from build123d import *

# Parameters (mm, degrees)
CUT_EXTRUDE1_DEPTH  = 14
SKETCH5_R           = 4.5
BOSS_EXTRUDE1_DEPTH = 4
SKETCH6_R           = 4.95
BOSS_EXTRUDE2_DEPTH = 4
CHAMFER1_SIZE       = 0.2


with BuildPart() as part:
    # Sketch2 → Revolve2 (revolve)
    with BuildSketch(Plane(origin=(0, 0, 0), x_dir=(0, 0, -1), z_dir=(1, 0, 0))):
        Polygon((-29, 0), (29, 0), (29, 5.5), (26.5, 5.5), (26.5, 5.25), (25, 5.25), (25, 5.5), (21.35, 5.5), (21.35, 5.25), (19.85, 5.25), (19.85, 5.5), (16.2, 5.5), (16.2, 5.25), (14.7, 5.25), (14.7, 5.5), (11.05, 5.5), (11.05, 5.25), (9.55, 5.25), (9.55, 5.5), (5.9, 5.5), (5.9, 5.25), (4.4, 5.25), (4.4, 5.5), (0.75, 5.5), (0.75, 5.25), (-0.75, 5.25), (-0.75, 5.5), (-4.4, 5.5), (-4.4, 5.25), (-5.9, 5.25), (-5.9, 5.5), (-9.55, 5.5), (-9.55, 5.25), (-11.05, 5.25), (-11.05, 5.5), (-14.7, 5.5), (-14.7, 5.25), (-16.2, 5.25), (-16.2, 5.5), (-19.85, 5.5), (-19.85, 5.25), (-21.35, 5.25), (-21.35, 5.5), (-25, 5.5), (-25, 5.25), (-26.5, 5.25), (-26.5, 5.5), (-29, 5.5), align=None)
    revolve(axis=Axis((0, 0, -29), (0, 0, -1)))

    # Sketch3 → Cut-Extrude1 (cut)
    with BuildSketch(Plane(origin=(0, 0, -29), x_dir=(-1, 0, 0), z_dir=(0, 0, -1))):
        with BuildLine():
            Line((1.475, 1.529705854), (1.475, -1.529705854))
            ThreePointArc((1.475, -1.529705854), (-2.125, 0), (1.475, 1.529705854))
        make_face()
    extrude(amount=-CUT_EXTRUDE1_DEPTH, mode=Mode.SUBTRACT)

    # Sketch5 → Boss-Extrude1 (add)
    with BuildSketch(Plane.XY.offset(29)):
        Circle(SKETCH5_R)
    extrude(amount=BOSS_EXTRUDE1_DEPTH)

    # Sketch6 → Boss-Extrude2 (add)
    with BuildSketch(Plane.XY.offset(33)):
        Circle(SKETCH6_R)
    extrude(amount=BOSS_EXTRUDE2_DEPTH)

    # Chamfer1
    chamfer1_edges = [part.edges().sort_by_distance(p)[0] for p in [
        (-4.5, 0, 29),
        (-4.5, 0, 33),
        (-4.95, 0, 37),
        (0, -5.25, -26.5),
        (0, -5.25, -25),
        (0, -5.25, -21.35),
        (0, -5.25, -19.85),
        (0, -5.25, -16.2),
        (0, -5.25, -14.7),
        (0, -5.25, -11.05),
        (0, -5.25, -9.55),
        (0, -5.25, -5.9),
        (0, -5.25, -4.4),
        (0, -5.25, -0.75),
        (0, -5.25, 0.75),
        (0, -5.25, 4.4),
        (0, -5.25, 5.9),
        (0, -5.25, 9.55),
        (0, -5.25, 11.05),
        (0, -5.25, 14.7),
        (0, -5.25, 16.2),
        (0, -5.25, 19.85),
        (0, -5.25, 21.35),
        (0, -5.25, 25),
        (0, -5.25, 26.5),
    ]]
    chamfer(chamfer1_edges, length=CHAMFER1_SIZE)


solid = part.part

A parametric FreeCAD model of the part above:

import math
import FreeCAD as App
import Part
import Sketcher

V = App.Vector


def edges_at(feature, points):
    """Names of the edges that pass closest to the given points."""
    edges = feature.Shape.Edges
    near = lambda p: min(range(len(edges)), key=lambda i: edges[i].distToShape(Part.Vertex(*p))[0])
    return sorted({f"Edge{near(p) + 1}" for p in points})


def add_polygon(sketch, points):
    """Adds a closed chain of lines whose ends are joined by coincident constraints."""
    first, n = sketch.GeometryCount, len(points)
    for a, b in zip(points, points[1:] + points[:1]):
        sketch.addGeometry(Part.LineSegment(App.Vector(*a, 0), App.Vector(*b, 0)), False)
    for i in range(n):
        sketch.addConstraint(Sketcher.Constraint("Coincident", first + i, 2, first + (i + 1) % n, 1))

doc = App.newDocument("Part")
body = doc.addObject("PartDesign::Body", "Body")

# Sketch on YZ plane
sketch1 = doc.addObject("Sketcher::SketchObject", "Sketch")
body.addObject(sketch1)
sketch1.AttachmentSupport = (doc.YZ_Plane, [""])
sketch1.MapMode = "FlatFace"
add_polygon(sketch1, [(0, 29), (0, -29), (5.5, -29), (5.5, -26.5), (5.25, -26.5), (5.25, -25), (5.5, -25), (5.5, -21.35), (5.25, -21.35), (5.25, -19.85), (5.5, -19.85), (5.5, -16.2), (5.25, -16.2), (5.25, -14.7), (5.5, -14.7), (5.5, -11.05), (5.25, -11.05), (5.25, -9.55), (5.5, -9.55), (5.5, -5.9), (5.25, -5.9), (5.25, -4.4), (5.5, -4.4), (5.5, -0.75), (5.25, -0.75), (5.25, 0.75), (5.5, 0.75), (5.5, 4.4), (5.25, 4.4), (5.25, 5.9), (5.5, 5.9), (5.5, 9.55), (5.25, 9.55), (5.25, 11.05), (5.5, 11.05), (5.5, 14.7), (5.25, 14.7), (5.25, 16.2), (5.5, 16.2), (5.5, 19.85), (5.25, 19.85), (5.25, 21.35), (5.5, 21.35), (5.5, 25), (5.25, 25), (5.25, 26.5), (5.5, 26.5), (5.5, 29)])  # lines 0-47
sketch1.addConstraint(Sketcher.Constraint("Vertical", 0))
sketch1.addConstraint(Sketcher.Constraint("Horizontal", 1))
sketch1.addConstraint(Sketcher.Constraint("Vertical", 2))
sketch1.addConstraint(Sketcher.Constraint("Horizontal", 3))
sketch1.addConstraint(Sketcher.Constraint("Vertical", 4))
sketch1.addConstraint(Sketcher.Constraint("Horizontal", 5))
sketch1.addConstraint(Sketcher.Constraint("Vertical", 6))
sketch1.addConstraint(Sketcher.Constraint("Horizontal", 7))
sketch1.addConstraint(Sketcher.Constraint("Vertical", 8))
sketch1.addConstraint(Sketcher.Constraint("Horizontal", 9))
sketch1.addConstraint(Sketcher.Constraint("Vertical", 10))
sketch1.addConstraint(Sketcher.Constraint("Horizontal", 11))
sketch1.addConstraint(Sketcher.Constraint("Vertical", 12))
sketch1.addConstraint(Sketcher.Constraint("Horizontal", 13))
sketch1.addConstraint(Sketcher.Constraint("Vertical", 14))
sketch1.addConstraint(Sketcher.Constraint("Horizontal", 15))
sketch1.addConstraint(Sketcher.Constraint("Vertical", 16))
sketch1.addConstraint(Sketcher.Constraint("Horizontal", 17))
sketch1.addConstraint(Sketcher.Constraint("Vertical", 18))
sketch1.addConstraint(Sketcher.Constraint("Horizontal", 19))
sketch1.addConstraint(Sketcher.Constraint("Vertical", 20))
sketch1.addConstraint(Sketcher.Constraint("Horizontal", 21))
sketch1.addConstraint(Sketcher.Constraint("Vertical", 22))
sketch1.addConstraint(Sketcher.Constraint("Horizontal", 23))
sketch1.addConstraint(Sketcher.Constraint("Vertical", 24))
sketch1.addConstraint(Sketcher.Constraint("Horizontal", 25))
sketch1.addConstraint(Sketcher.Constraint("Vertical", 26))
sketch1.addConstraint(Sketcher.Constraint("Horizontal", 27))
sketch1.addConstraint(Sketcher.Constraint("Vertical", 28))
sketch1.addConstraint(Sketcher.Constraint("Horizontal", 29))
sketch1.addConstraint(Sketcher.Constraint("Vertical", 30))
sketch1.addConstraint(Sketcher.Constraint("Horizontal", 31))
sketch1.addConstraint(Sketcher.Constraint("Vertical", 32))
sketch1.addConstraint(Sketcher.Constraint("Horizontal", 33))
sketch1.addConstraint(Sketcher.Constraint("Vertical", 34))
sketch1.addConstraint(Sketcher.Constraint("Horizontal", 35))
sketch1.addConstraint(Sketcher.Constraint("Vertical", 36))
sketch1.addConstraint(Sketcher.Constraint("Horizontal", 37))
sketch1.addConstraint(Sketcher.Constraint("Vertical", 38))
sketch1.addConstraint(Sketcher.Constraint("Horizontal", 39))
sketch1.addConstraint(Sketcher.Constraint("Vertical", 40))
sketch1.addConstraint(Sketcher.Constraint("Horizontal", 41))
sketch1.addConstraint(Sketcher.Constraint("Vertical", 42))
sketch1.addConstraint(Sketcher.Constraint("Horizontal", 43))
sketch1.addConstraint(Sketcher.Constraint("Vertical", 44))
sketch1.addConstraint(Sketcher.Constraint("Horizontal", 45))
sketch1.addConstraint(Sketcher.Constraint("Vertical", 46))
sketch1.addConstraint(Sketcher.Constraint("Horizontal", 47))
sketch1.addConstraint(Sketcher.Constraint("Symmetric", 0, 2, 47, 2, -1, 1))
sketch1.addConstraint(Sketcher.Constraint("Symmetric", 22, 2, 25, 2, -1))
sketch1.addConstraint(Sketcher.Constraint("Symmetric", 20, 2, 27, 2, -1))
sketch1.addConstraint(Sketcher.Constraint("Symmetric", 18, 2, 29, 2, -1))
sketch1.addConstraint(Sketcher.Constraint("Symmetric", 16, 2, 31, 2, -1))
sketch1.addConstraint(Sketcher.Constraint("Symmetric", 14, 2, 33, 2, -1))
sketch1.addConstraint(Sketcher.Constraint("Symmetric", 12, 2, 35, 2, -1))
sketch1.addConstraint(Sketcher.Constraint("Symmetric", 10, 2, 37, 2, -1))
sketch1.addConstraint(Sketcher.Constraint("Symmetric", 8, 2, 39, 2, -1))
sketch1.addConstraint(Sketcher.Constraint("Symmetric", 6, 2, 41, 2, -1))
sketch1.addConstraint(Sketcher.Constraint("Symmetric", 4, 2, 43, 2, -1))
sketch1.addConstraint(Sketcher.Constraint("Symmetric", 2, 2, 45, 2, -1))
sketch1.addConstraint(Sketcher.Constraint("Vertical", 2, 2, 5, 2))
sketch1.addConstraint(Sketcher.Constraint("Vertical", 4, 2, 7, 2))
sketch1.addConstraint(Sketcher.Constraint("Vertical", 6, 2, 9, 2))
sketch1.addConstraint(Sketcher.Constraint("Vertical", 8, 2, 11, 2))
sketch1.addConstraint(Sketcher.Constraint("Vertical", 10, 2, 13, 2))
sketch1.addConstraint(Sketcher.Constraint("Vertical", 12, 2, 15, 2))
sketch1.addConstraint(Sketcher.Constraint("Vertical", 14, 2, 17, 2))
sketch1.addConstraint(Sketcher.Constraint("Vertical", 16, 2, 19, 2))
sketch1.addConstraint(Sketcher.Constraint("Vertical", 18, 2, 21, 2))
sketch1.addConstraint(Sketcher.Constraint("Vertical", 20, 2, 23, 2))
sketch1.addConstraint(Sketcher.Constraint("Equal", 4, 8))
sketch1.addConstraint(Sketcher.Constraint("Equal", 6, 10))
sketch1.addConstraint(Sketcher.Constraint("Equal", 8, 12))
sketch1.addConstraint(Sketcher.Constraint("Equal", 10, 14))
sketch1.addConstraint(Sketcher.Constraint("Equal", 12, 16))
sketch1.addConstraint(Sketcher.Constraint("Equal", 14, 18))
sketch1.addConstraint(Sketcher.Constraint("Equal", 16, 20))
sketch1.addConstraint(Sketcher.Constraint("Equal", 18, 22))
sketch1.addConstraint(Sketcher.Constraint("Equal", 20, 24))
sketch1.addConstraint(Sketcher.Constraint("DistanceY", 0, 2, 0, 1, 58.0))
sketch1.addConstraint(Sketcher.Constraint("DistanceX", 1, 1, 1, 2, 5.5))
sketch1.addConstraint(Sketcher.Constraint("DistanceY", 2, 1, 2, 2, 2.5))
sketch1.addConstraint(Sketcher.Constraint("DistanceY", 4, 1, 4, 2, 1.5))
sketch1.addConstraint(Sketcher.Constraint("DistanceX", 3, 2, 3, 1, 0.25))
revolution = doc.addObject("PartDesign::Revolution", "Revolution")
body.addObject(revolution)
revolution.Profile = sketch1
revolution.ReferenceAxis = (sketch1, ["V_Axis"])
revolution.Angle = 360

# Sketch on XY plane
sketch2 = doc.addObject("Sketcher::SketchObject", "Sketch001")
body.addObject(sketch2)
sketch2.AttachmentSupport = (doc.XY_Plane, [""])
sketch2.MapMode = "FlatFace"
sketch2.AttachmentOffset = App.Placement(V(0, 0, -29), App.Rotation())
sketch2.addGeometry(Part.LineSegment(V(-1.5, -1.5, 0), V(-1.5, 1.5, 0)), False)
sketch2.addGeometry(Part.ArcOfCircle(Part.Circle(V(0, 0, 0), V(0, 0, 1), 2.1), math.radians(-134), math.radians(134)), False)
sketch2.addConstraint(Sketcher.Constraint("Coincident", 0, 1, 1, 1))
sketch2.addConstraint(Sketcher.Constraint("Coincident", 1, 2, 0, 2))
sketch2.addConstraint(Sketcher.Constraint("Vertical", 0))
sketch2.addConstraint(Sketcher.Constraint("Coincident", 1, 3, -1, 1))
sketch2.addConstraint(Sketcher.Constraint("Radius", 1, 2.125))
sketch2.addConstraint(Sketcher.Constraint("DistanceX", 0, 1, -1, 1, 1.475))
pocket1 = doc.addObject("PartDesign::Pocket", "Pocket")
body.addObject(pocket1)
pocket1.Profile = sketch2
pocket1.Length = 14
pocket1.Reversed = True

# Sketch on XY plane
sketch3 = doc.addObject("Sketcher::SketchObject", "Sketch002")
body.addObject(sketch3)
sketch3.AttachmentSupport = (doc.XY_Plane, [""])
sketch3.MapMode = "FlatFace"
sketch3.AttachmentOffset = App.Placement(V(0, 0, 29), App.Rotation())
sketch3.addGeometry(Part.Circle(V(0, 0, 0), V(0, 0, 1), 4.5), False)
sketch3.addConstraint(Sketcher.Constraint("Coincident", 0, 3, -1, 1))
sketch3.addConstraint(Sketcher.Constraint("Diameter", 0, 9.0))
pad1 = doc.addObject("PartDesign::Pad", "Pad")
body.addObject(pad1)
pad1.Profile = sketch3
pad1.Length = 4

# Sketch on XY plane
sketch4 = doc.addObject("Sketcher::SketchObject", "Sketch003")
body.addObject(sketch4)
sketch4.AttachmentSupport = (doc.XY_Plane, [""])
sketch4.MapMode = "FlatFace"
sketch4.AttachmentOffset = App.Placement(V(0, 0, 33), App.Rotation())
sketch4.addGeometry(Part.Circle(V(0, 0, 0), V(0, 0, 1), 5), False)
sketch4.addConstraint(Sketcher.Constraint("Coincident", 0, 3, -1, 1))
sketch4.addConstraint(Sketcher.Constraint("Diameter", 0, 9.9))
pad2 = doc.addObject("PartDesign::Pad", "Pad001")
body.addObject(pad2)
pad2.Profile = sketch4
pad2.Length = 4
doc.recompute()

chamfer = doc.addObject("PartDesign::Chamfer", "Chamfer")
body.addObject(chamfer)
chamfer.Base = (pad2, edges_at(pad2, [
    (-4.5, 0, 29),
    (-4.5, 0, 33),
    (-4.95, 0, 37),
    (0, -5.25, -26.5),
    (0, -5.25, -25),
    (0, -5.25, -21.35),
    (0, -5.25, -19.85),
    (0, -5.25, -16.2),
    (0, -5.25, -14.7),
    (0, -5.25, -11.05),
    (0, -5.25, -9.55),
    (0, -5.25, -5.9),
    (0, -5.25, -4.4),
    (0, -5.25, -0.75),
    (0, -5.25, 0.75),
    (0, -5.25, 4.4),
    (0, -5.25, 5.9),
    (0, -5.25, 9.55),
    (0, -5.25, 11.05),
    (0, -5.25, 14.7),
    (0, -5.25, 16.2),
    (0, -5.25, 19.85),
    (0, -5.25, 21.35),
    (0, -5.25, 25),
    (0, -5.25, 26.5),
]))
chamfer.Size = 0.2

doc.recompute()
